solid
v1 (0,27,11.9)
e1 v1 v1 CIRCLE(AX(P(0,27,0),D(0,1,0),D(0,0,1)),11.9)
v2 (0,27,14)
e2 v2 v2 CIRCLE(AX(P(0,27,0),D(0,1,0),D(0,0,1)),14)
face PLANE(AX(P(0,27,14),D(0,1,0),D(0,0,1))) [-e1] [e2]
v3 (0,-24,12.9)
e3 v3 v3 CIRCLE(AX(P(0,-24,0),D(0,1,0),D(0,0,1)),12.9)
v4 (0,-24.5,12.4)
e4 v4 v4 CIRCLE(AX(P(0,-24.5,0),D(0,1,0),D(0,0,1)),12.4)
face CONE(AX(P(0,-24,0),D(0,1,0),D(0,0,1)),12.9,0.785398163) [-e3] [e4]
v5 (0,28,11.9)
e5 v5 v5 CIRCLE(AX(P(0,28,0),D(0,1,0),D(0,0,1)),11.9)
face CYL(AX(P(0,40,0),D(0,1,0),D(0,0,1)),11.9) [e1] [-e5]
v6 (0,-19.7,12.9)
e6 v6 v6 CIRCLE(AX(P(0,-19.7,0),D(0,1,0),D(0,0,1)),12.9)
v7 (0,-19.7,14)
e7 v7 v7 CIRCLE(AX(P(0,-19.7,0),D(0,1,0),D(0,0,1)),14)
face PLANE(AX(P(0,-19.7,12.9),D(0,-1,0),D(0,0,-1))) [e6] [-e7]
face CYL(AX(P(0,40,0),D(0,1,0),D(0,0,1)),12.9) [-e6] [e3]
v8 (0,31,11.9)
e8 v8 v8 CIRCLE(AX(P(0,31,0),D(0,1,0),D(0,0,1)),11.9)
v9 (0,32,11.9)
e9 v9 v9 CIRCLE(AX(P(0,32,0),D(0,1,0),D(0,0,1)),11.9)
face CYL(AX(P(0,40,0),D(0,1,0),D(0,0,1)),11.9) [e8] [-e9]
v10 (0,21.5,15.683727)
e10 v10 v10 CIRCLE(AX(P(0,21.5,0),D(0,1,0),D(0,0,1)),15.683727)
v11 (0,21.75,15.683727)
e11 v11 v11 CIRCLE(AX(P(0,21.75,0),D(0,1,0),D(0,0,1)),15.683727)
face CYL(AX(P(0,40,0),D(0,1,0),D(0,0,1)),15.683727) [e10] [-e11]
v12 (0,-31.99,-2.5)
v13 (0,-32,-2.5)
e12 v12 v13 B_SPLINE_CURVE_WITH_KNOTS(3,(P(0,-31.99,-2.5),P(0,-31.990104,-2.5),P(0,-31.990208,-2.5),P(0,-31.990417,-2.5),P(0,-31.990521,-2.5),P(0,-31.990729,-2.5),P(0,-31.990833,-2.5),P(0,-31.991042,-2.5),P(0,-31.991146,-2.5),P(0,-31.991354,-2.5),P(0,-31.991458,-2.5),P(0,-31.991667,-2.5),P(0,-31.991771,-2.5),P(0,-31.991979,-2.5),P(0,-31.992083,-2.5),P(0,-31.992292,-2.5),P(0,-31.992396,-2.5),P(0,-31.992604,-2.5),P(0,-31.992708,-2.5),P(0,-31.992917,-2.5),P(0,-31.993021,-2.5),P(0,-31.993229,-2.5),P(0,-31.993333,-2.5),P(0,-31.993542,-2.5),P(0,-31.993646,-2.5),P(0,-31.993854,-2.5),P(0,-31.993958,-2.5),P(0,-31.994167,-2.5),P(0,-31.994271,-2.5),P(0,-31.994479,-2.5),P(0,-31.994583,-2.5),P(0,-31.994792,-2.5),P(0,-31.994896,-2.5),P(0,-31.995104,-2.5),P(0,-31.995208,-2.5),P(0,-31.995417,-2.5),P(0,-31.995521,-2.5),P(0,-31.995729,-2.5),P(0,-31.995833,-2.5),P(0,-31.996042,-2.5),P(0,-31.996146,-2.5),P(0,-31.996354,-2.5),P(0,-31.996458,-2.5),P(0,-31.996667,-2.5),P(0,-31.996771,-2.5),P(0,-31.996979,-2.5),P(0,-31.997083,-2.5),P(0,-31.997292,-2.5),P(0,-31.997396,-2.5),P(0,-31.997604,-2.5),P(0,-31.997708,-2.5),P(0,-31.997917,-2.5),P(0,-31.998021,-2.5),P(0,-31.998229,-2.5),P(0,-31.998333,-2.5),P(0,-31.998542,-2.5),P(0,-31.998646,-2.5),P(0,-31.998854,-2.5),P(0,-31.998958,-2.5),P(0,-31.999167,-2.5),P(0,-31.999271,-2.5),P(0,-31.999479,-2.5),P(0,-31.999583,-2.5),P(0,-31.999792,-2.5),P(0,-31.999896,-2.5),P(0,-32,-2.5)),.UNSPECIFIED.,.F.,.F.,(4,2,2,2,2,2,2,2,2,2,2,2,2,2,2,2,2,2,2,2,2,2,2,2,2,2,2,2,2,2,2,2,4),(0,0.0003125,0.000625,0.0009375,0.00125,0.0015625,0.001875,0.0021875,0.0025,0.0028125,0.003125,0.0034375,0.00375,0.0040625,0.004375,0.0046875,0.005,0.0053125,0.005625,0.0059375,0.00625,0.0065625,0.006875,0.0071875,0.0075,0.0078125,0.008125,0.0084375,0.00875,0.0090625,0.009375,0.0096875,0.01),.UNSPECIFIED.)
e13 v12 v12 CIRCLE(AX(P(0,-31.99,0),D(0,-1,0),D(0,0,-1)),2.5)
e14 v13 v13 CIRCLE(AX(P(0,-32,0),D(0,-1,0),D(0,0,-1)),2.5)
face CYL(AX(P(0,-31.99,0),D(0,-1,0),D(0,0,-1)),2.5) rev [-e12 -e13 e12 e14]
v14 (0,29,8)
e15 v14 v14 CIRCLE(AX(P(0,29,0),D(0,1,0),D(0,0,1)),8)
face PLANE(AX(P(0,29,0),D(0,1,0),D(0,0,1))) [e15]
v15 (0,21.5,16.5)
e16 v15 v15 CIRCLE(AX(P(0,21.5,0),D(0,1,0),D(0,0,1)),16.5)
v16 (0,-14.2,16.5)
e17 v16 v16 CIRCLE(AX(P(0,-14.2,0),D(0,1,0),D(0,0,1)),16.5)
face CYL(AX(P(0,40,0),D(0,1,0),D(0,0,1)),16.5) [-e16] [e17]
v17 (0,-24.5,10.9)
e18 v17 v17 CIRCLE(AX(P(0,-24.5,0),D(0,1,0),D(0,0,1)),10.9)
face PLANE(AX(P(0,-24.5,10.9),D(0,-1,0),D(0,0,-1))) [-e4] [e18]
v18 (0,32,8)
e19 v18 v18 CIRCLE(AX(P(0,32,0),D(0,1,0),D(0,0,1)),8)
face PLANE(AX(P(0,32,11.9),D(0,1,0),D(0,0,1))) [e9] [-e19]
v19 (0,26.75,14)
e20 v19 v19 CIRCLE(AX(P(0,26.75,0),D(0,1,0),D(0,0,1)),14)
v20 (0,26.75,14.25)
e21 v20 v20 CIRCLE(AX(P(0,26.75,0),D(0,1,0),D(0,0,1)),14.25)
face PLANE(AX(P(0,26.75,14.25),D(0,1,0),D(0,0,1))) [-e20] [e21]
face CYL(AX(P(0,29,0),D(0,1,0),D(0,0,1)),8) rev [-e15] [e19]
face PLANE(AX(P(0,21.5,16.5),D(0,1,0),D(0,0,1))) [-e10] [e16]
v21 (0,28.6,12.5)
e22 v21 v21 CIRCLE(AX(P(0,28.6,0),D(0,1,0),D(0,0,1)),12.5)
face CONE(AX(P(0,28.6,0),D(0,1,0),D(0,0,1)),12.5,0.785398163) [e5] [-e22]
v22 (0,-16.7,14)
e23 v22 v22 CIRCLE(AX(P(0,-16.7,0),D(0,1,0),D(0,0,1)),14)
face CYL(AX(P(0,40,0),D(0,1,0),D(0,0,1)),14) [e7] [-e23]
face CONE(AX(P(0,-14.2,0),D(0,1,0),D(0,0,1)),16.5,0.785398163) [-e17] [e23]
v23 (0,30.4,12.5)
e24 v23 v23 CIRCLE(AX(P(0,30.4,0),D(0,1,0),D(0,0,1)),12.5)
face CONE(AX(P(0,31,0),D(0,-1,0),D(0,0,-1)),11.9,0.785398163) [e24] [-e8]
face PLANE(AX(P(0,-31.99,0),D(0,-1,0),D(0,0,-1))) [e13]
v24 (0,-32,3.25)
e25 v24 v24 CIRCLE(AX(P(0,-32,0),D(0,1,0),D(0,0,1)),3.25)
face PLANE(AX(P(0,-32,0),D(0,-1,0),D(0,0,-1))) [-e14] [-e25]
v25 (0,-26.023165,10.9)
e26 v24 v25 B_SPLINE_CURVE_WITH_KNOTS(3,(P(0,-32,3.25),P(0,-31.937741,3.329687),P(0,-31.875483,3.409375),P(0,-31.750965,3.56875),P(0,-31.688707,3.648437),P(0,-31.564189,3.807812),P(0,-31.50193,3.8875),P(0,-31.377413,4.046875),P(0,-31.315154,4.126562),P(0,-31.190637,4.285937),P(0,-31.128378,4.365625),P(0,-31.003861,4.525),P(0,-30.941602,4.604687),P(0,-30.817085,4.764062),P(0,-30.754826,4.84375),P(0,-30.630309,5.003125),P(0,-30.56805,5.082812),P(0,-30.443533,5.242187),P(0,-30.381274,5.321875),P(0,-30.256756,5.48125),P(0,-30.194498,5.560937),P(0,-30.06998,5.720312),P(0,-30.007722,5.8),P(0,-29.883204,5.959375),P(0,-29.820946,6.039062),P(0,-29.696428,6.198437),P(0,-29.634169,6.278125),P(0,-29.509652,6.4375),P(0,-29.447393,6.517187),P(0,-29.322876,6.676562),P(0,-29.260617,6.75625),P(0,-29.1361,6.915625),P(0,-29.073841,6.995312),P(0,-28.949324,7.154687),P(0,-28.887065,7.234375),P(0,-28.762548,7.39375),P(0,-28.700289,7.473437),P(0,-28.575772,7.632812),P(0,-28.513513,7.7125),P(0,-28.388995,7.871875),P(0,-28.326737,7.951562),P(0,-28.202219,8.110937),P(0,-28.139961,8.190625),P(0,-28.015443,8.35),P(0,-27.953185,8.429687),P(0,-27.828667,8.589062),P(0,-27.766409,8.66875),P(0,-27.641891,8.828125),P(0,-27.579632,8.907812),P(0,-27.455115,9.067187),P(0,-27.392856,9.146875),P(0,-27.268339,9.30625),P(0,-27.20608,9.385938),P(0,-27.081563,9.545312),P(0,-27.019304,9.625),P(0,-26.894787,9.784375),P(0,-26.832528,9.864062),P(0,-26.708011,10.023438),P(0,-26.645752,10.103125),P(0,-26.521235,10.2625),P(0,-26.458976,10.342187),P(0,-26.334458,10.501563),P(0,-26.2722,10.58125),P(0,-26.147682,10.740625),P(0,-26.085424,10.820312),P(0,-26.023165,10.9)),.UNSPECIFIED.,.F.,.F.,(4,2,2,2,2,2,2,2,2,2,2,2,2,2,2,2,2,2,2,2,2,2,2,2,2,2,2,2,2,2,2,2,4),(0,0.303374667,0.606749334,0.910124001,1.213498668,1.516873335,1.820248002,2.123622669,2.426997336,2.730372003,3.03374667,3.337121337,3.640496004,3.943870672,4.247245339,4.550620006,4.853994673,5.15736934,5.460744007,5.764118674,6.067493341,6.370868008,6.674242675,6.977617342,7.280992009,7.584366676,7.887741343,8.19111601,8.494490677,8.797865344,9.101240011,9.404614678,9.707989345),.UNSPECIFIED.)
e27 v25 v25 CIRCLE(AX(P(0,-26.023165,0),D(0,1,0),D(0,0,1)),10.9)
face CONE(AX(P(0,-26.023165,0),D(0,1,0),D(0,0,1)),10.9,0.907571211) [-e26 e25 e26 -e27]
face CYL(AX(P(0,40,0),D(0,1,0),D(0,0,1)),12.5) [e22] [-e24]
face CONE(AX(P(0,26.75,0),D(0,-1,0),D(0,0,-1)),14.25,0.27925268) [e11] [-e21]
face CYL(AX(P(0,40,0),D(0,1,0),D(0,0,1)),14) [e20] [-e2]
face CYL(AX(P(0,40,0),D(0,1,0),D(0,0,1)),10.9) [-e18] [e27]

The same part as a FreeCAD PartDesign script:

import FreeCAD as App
import Part
import Sketcher
from FreeCAD import Vector
Q = App.Units.Quantity

doc = App.newDocument("Part")
body = doc.addObject("PartDesign::Body", "Body")

# Sketch on YZ plane
sketch1 = body.newObject("Sketcher::SketchObject", "Sketch")
sketch1.AttachmentSupport = (doc.getObject("YZ_Plane"), [""])
sketch1.MapMode = "FlatFace"
sketch1.addGeometry(Part.LineSegment(Vector(-32, 0, 0), Vector(32, 0, 0)), False)
sketch1.addGeometry(Part.LineSegment(Vector(32, 0, 0), Vector(32, 11.9, 0)), False)
sketch1.addGeometry(Part.LineSegment(Vector(32, 11.9, 0), Vector(31, 11.9, 0)), False)
sketch1.addGeometry(Part.LineSegment(Vector(31, 11.9, 0), Vector(30.4, 12.5, 0)), False)
sketch1.addGeometry(Part.LineSegment(Vector(30.4, 12.5, 0), Vector(28.6, 12.5, 0)), False)
sketch1.addGeometry(Part.LineSegment(Vector(28.6, 12.5, 0), Vector(28, 11.9, 0)), False)
sketch1.addGeometry(Part.LineSegment(Vector(28, 11.9, 0), Vector(27, 11.9, 0)), False)
sketch1.addGeometry(Part.LineSegment(Vector(27, 11.9, 0), Vector(27, 14, 0)), False)
sketch1.addGeometry(Part.LineSegment(Vector(27, 14, 0), Vector(26.75, 14, 0)), False)
sketch1.addGeometry(Part.LineSegment(Vector(26.75, 14, 0), Vector(26.75, 14.25, 0)), False)
sketch1.addGeometry(Part.LineSegment(Vector(26.75, 14.25, 0), Vector(21.75, 15.68, 0)), False)
sketch1.addGeometry(Part.LineSegment(Vector(21.75, 15.68, 0), Vector(21.5, 15.68, 0)), False)
sketch1.addGeometry(Part.LineSegment(Vector(21.5, 15.68, 0), Vector(21.5, 16.5, 0)), False)
sketch1.addGeometry(Part.LineSegment(Vector(21.5, 16.5, 0), Vector(-14.2, 16.5, 0)), False)
sketch1.addGeometry(Part.LineSegment(Vector(-14.2, 16.5, 0), Vector(-16.7, 14, 0)), False)
sketch1.addGeometry(Part.LineSegment(Vector(-16.7, 14, 0), Vector(-19.7, 14, 0)), False)
sketch1.addGeometry(Part.LineSegment(Vector(-19.7, 14, 0), Vector(-19.7, 12.9, 0)), False)
sketch1.addGeometry(Part.LineSegment(Vector(-19.7, 12.9, 0), Vector(-24, 12.9, 0)), False)
sketch1.addGeometry(Part.LineSegment(Vector(-24, 12.9, 0), Vector(-24.5, 12.4, 0)), False)
sketch1.addGeometry(Part.LineSegment(Vector(-24.5, 12.4, 0), Vector(-24.5, 10.9, 0)), False)
sketch1.addGeometry(Part.LineSegment(Vector(-24.5, 10.9, 0), Vector(-26.02, 10.9, 0)), False)
sketch1.addGeometry(Part.LineSegment(Vector(-26.02, 10.9, 0), Vector(-32, 3.25, 0)), False)
sketch1.addGeometry(Part.LineSegment(Vector(-32, 3.25, 0), Vector(-32, 0, 0)), False)
sketch1.addConstraint(Sketcher.Constraint("Coincident", 0, 2, 1, 1))
sketch1.addConstraint(Sketcher.Constraint("Coincident", 1, 2, 2, 1))
sketch1.addConstraint(Sketcher.Constraint("Coincident", 2, 2, 3, 1))
sketch1.addConstraint(Sketcher.Constraint("Coincident", 3, 2, 4, 1))
sketch1.addConstraint(Sketcher.Constraint("Coincident", 4, 2, 5, 1))
sketch1.addConstraint(Sketcher.Constraint("Coincident", 5, 2, 6, 1))
sketch1.addConstraint(Sketcher.Constraint("Coincident", 6, 2, 7, 1))
sketch1.addConstraint(Sketcher.Constraint("Coincident", 7, 2, 8, 1))
sketch1.addConstraint(Sketcher.Constraint("Coincident", 8, 2, 9, 1))
sketch1.addConstraint(Sketcher.Constraint("Coincident", 9, 2, 10, 1))
sketch1.addConstraint(Sketcher.Constraint("Coincident", 10, 2, 11, 1))
sketch1.addConstraint(Sketcher.Constraint("Coincident", 11, 2, 12, 1))
sketch1.addConstraint(Sketcher.Constraint("Coincident", 12, 2, 13, 1))
sketch1.addConstraint(Sketcher.Constraint("Coincident", 13, 2, 14, 1))
sketch1.addConstraint(Sketcher.Constraint("Coincident", 14, 2, 15, 1))
sketch1.addConstraint(Sketcher.Constraint("Coincident", 15, 2, 16, 1))
sketch1.addConstraint(Sketcher.Constraint("Coincident", 16, 2, 17, 1))
sketch1.addConstraint(Sketcher.Constraint("Coincident", 17, 2, 18, 1))
sketch1.addConstraint(Sketcher.Constraint("Coincident", 18, 2, 19, 1))
sketch1.addConstraint(Sketcher.Constraint("Coincident", 19, 2, 20, 1))
sketch1.addConstraint(Sketcher.Constraint("Coincident", 20, 2, 21, 1))
sketch1.addConstraint(Sketcher.Constraint("Coincident", 21, 2, 22, 1))
sketch1.addConstraint(Sketcher.Constraint("Coincident", 22, 2, 0, 1))
sketch1.addConstraint(Sketcher.Constraint("Horizontal", 0))
sketch1.addConstraint(Sketcher.Constraint("Vertical", 1))
sketch1.addConstraint(Sketcher.Constraint("Horizontal", 2))
sketch1.addConstraint(Sketcher.Constraint("Horizontal", 4))
sketch1.addConstraint(Sketcher.Constraint("Horizontal", 6))
sketch1.addConstraint(Sketcher.Constraint("Vertical", 7))
sketch1.addConstraint(Sketcher.Constraint("Horizontal", 8))
sketch1.addConstraint(Sketcher.Constraint("Vertical", 9))
sketch1.addConstraint(Sketcher.Constraint("Horizontal", 11))
sketch1.addConstraint(Sketcher.Constraint("Vertical", 12))
sketch1.addConstraint(Sketcher.Constraint("Horizontal", 13))
sketch1.addConstraint(Sketcher.Constraint("Horizontal", 15))
sketch1.addConstraint(Sketcher.Constraint("Vertical", 16))
sketch1.addConstraint(Sketcher.Constraint("Horizontal", 17))
sketch1.addConstraint(Sketcher.Constraint("Vertical", 19))
sketch1.addConstraint(Sketcher.Constraint("Horizontal", 20))
sketch1.addConstraint(Sketcher.Constraint("Vertical", 22))
sketch1.addConstraint(Sketcher.Constraint("Symmetric", 0, 2, 22, 2, -1, 1))
sketch1.addConstraint(Sketcher.Constraint("Perpendicular", 3, 5))
sketch1.addConstraint(Sketcher.Constraint("Parallel", 5, 14))
sketch1.addConstraint(Sketcher.Constraint("Parallel", 14, 18))
sketch1.addConstraint(Sketcher.Constraint("Horizontal", 2, 2, 5, 2))
sketch1.addConstraint(Sketcher.Constraint("Horizontal", 8, 2, 14, 2))
sketch1.addConstraint(Sketcher.Constraint("Equal", 2, 6))
sketch1.addConstraint(Sketcher.Constraint("Equal", 8, 11))
sketch1.addConstraint(Sketcher.Constraint("Equal", 11, 9))
sketch1.addConstraint(Sketcher.Constraint("Equal", 3, 5))
sketch1.addConstraint(Sketcher.Constraint("DistanceX", 0, 1, 0, 2, 64.0))
sketch1.addConstraint(Sketcher.Constraint("DistanceX", 2, 2, 2, 1, 1.0))
sketch1.addConstraint(Sketcher.Constraint("DistanceX", 15, 2, 15, 1, 3.0))
sketch1.addConstraint(Sketcher.Constraint("Angle", 10, Q("164 deg")))
sketch1.addConstraint(Sketcher.Constraint("Angle", 21, Q("-128 deg")))
sketch1.addConstraint(Sketcher.Constraint("DistanceX", 4, 2, 4, 1, 1.8))
sketch1.addConstraint(Sketcher.Constraint("DistanceX", 13, 2, 13, 1, 35.7))
sketch1.addConstraint(Sketcher.Constraint("DistanceX", 17, 2, 17, 1, 4.3))
sketch1.addConstraint(Sketcher.Constraint("DistanceY", 1, 1, 1, 2, 11.9))
sketch1.addConstraint(Sketcher.Constraint("DistanceY", 7, 1, 7, 2, 2.1))
sketch1.addConstraint(Sketcher.Constraint("DistanceY", 16, 2, 16, 1, 1.1))
sketch1.addConstraint(Sketcher.Constraint("DistanceY", 19, 2, 19, 1, 1.5))
sketch1.addConstraint(Sketcher.Constraint("DistanceX", -1, 1, 5, 2, 28.0))
sketch1.addConstraint(Sketcher.Constraint("DistanceX", 17, 2, -1, 1, 24.0))
sketch1.addConstraint(Sketcher.Constraint("DistanceX", 10, 2, 9, 2, 5.0))
sketch1.addConstraint(Sketcher.Constraint("DistanceY", 19, 2, 17, 2, 2.0))
sketch1.addConstraint(Sketcher.Constraint("DistanceX", 8, 2, 8, 1, 0.25))
sketch1.addConstraint(Sketcher.Constraint("DistanceY", 22, 2, 22, 1, 3.25))
revolution = body.newObject("PartDesign::Revolution", "Revolution")
revolution.Profile = sketch1
revolution.ReferenceAxis = (sketch1, ["H_Axis"])
revolution.Angle = 360

# Sketch on XZ plane
sketch2 = body.newObject("Sketcher::SketchObject", "Sketch001")
sketch2.AttachmentSupport = (doc.getObject("XZ_Plane"), [""])
sketch2.MapMode = "FlatFace"
sketch2.AttachmentOffset = App.Placement(Vector(0, 0, -32), App.Rotation())
sketch2.addGeometry(Part.Circle(Vector(0, 0, 0), Vector(0, 0, 1), 8), False)
sketch2.addConstraint(Sketcher.Constraint("Coincident", 0, 3, -1, 1))
sketch2.addConstraint(Sketcher.Constraint("Diameter", 0, 16.0))
pocket1 = body.newObject("PartDesign::Pocket", "Pocket")
pocket1.Profile = sketch2
pocket1.Length = 3
pocket1.Reversed = True

# Sketch on XZ plane
sketch3 = body.newObject("Sketcher::SketchObject", "Sketch002")
sketch3.AttachmentSupport = (doc.getObject("XZ_Plane"), [""])
sketch3.MapMode = "FlatFace"
sketch3.AttachmentOffset = App.Placement(Vector(0, 0, 32), App.Rotation())
sketch3.addGeometry(Part.Circle(Vector(0, 0, 0), Vector(0, 0, 1), 2.5), False)
sketch3.addConstraint(Sketcher.Constraint("Coincident", 0, 3, -1, 1))
sketch3.addConstraint(Sketcher.Constraint("Diameter", 0, 5.0))
pocket2 = body.newObject("PartDesign::Pocket", "Pocket001")
pocket2.Profile = sketch3
pocket2.Length = 0.01

doc.recompute()
